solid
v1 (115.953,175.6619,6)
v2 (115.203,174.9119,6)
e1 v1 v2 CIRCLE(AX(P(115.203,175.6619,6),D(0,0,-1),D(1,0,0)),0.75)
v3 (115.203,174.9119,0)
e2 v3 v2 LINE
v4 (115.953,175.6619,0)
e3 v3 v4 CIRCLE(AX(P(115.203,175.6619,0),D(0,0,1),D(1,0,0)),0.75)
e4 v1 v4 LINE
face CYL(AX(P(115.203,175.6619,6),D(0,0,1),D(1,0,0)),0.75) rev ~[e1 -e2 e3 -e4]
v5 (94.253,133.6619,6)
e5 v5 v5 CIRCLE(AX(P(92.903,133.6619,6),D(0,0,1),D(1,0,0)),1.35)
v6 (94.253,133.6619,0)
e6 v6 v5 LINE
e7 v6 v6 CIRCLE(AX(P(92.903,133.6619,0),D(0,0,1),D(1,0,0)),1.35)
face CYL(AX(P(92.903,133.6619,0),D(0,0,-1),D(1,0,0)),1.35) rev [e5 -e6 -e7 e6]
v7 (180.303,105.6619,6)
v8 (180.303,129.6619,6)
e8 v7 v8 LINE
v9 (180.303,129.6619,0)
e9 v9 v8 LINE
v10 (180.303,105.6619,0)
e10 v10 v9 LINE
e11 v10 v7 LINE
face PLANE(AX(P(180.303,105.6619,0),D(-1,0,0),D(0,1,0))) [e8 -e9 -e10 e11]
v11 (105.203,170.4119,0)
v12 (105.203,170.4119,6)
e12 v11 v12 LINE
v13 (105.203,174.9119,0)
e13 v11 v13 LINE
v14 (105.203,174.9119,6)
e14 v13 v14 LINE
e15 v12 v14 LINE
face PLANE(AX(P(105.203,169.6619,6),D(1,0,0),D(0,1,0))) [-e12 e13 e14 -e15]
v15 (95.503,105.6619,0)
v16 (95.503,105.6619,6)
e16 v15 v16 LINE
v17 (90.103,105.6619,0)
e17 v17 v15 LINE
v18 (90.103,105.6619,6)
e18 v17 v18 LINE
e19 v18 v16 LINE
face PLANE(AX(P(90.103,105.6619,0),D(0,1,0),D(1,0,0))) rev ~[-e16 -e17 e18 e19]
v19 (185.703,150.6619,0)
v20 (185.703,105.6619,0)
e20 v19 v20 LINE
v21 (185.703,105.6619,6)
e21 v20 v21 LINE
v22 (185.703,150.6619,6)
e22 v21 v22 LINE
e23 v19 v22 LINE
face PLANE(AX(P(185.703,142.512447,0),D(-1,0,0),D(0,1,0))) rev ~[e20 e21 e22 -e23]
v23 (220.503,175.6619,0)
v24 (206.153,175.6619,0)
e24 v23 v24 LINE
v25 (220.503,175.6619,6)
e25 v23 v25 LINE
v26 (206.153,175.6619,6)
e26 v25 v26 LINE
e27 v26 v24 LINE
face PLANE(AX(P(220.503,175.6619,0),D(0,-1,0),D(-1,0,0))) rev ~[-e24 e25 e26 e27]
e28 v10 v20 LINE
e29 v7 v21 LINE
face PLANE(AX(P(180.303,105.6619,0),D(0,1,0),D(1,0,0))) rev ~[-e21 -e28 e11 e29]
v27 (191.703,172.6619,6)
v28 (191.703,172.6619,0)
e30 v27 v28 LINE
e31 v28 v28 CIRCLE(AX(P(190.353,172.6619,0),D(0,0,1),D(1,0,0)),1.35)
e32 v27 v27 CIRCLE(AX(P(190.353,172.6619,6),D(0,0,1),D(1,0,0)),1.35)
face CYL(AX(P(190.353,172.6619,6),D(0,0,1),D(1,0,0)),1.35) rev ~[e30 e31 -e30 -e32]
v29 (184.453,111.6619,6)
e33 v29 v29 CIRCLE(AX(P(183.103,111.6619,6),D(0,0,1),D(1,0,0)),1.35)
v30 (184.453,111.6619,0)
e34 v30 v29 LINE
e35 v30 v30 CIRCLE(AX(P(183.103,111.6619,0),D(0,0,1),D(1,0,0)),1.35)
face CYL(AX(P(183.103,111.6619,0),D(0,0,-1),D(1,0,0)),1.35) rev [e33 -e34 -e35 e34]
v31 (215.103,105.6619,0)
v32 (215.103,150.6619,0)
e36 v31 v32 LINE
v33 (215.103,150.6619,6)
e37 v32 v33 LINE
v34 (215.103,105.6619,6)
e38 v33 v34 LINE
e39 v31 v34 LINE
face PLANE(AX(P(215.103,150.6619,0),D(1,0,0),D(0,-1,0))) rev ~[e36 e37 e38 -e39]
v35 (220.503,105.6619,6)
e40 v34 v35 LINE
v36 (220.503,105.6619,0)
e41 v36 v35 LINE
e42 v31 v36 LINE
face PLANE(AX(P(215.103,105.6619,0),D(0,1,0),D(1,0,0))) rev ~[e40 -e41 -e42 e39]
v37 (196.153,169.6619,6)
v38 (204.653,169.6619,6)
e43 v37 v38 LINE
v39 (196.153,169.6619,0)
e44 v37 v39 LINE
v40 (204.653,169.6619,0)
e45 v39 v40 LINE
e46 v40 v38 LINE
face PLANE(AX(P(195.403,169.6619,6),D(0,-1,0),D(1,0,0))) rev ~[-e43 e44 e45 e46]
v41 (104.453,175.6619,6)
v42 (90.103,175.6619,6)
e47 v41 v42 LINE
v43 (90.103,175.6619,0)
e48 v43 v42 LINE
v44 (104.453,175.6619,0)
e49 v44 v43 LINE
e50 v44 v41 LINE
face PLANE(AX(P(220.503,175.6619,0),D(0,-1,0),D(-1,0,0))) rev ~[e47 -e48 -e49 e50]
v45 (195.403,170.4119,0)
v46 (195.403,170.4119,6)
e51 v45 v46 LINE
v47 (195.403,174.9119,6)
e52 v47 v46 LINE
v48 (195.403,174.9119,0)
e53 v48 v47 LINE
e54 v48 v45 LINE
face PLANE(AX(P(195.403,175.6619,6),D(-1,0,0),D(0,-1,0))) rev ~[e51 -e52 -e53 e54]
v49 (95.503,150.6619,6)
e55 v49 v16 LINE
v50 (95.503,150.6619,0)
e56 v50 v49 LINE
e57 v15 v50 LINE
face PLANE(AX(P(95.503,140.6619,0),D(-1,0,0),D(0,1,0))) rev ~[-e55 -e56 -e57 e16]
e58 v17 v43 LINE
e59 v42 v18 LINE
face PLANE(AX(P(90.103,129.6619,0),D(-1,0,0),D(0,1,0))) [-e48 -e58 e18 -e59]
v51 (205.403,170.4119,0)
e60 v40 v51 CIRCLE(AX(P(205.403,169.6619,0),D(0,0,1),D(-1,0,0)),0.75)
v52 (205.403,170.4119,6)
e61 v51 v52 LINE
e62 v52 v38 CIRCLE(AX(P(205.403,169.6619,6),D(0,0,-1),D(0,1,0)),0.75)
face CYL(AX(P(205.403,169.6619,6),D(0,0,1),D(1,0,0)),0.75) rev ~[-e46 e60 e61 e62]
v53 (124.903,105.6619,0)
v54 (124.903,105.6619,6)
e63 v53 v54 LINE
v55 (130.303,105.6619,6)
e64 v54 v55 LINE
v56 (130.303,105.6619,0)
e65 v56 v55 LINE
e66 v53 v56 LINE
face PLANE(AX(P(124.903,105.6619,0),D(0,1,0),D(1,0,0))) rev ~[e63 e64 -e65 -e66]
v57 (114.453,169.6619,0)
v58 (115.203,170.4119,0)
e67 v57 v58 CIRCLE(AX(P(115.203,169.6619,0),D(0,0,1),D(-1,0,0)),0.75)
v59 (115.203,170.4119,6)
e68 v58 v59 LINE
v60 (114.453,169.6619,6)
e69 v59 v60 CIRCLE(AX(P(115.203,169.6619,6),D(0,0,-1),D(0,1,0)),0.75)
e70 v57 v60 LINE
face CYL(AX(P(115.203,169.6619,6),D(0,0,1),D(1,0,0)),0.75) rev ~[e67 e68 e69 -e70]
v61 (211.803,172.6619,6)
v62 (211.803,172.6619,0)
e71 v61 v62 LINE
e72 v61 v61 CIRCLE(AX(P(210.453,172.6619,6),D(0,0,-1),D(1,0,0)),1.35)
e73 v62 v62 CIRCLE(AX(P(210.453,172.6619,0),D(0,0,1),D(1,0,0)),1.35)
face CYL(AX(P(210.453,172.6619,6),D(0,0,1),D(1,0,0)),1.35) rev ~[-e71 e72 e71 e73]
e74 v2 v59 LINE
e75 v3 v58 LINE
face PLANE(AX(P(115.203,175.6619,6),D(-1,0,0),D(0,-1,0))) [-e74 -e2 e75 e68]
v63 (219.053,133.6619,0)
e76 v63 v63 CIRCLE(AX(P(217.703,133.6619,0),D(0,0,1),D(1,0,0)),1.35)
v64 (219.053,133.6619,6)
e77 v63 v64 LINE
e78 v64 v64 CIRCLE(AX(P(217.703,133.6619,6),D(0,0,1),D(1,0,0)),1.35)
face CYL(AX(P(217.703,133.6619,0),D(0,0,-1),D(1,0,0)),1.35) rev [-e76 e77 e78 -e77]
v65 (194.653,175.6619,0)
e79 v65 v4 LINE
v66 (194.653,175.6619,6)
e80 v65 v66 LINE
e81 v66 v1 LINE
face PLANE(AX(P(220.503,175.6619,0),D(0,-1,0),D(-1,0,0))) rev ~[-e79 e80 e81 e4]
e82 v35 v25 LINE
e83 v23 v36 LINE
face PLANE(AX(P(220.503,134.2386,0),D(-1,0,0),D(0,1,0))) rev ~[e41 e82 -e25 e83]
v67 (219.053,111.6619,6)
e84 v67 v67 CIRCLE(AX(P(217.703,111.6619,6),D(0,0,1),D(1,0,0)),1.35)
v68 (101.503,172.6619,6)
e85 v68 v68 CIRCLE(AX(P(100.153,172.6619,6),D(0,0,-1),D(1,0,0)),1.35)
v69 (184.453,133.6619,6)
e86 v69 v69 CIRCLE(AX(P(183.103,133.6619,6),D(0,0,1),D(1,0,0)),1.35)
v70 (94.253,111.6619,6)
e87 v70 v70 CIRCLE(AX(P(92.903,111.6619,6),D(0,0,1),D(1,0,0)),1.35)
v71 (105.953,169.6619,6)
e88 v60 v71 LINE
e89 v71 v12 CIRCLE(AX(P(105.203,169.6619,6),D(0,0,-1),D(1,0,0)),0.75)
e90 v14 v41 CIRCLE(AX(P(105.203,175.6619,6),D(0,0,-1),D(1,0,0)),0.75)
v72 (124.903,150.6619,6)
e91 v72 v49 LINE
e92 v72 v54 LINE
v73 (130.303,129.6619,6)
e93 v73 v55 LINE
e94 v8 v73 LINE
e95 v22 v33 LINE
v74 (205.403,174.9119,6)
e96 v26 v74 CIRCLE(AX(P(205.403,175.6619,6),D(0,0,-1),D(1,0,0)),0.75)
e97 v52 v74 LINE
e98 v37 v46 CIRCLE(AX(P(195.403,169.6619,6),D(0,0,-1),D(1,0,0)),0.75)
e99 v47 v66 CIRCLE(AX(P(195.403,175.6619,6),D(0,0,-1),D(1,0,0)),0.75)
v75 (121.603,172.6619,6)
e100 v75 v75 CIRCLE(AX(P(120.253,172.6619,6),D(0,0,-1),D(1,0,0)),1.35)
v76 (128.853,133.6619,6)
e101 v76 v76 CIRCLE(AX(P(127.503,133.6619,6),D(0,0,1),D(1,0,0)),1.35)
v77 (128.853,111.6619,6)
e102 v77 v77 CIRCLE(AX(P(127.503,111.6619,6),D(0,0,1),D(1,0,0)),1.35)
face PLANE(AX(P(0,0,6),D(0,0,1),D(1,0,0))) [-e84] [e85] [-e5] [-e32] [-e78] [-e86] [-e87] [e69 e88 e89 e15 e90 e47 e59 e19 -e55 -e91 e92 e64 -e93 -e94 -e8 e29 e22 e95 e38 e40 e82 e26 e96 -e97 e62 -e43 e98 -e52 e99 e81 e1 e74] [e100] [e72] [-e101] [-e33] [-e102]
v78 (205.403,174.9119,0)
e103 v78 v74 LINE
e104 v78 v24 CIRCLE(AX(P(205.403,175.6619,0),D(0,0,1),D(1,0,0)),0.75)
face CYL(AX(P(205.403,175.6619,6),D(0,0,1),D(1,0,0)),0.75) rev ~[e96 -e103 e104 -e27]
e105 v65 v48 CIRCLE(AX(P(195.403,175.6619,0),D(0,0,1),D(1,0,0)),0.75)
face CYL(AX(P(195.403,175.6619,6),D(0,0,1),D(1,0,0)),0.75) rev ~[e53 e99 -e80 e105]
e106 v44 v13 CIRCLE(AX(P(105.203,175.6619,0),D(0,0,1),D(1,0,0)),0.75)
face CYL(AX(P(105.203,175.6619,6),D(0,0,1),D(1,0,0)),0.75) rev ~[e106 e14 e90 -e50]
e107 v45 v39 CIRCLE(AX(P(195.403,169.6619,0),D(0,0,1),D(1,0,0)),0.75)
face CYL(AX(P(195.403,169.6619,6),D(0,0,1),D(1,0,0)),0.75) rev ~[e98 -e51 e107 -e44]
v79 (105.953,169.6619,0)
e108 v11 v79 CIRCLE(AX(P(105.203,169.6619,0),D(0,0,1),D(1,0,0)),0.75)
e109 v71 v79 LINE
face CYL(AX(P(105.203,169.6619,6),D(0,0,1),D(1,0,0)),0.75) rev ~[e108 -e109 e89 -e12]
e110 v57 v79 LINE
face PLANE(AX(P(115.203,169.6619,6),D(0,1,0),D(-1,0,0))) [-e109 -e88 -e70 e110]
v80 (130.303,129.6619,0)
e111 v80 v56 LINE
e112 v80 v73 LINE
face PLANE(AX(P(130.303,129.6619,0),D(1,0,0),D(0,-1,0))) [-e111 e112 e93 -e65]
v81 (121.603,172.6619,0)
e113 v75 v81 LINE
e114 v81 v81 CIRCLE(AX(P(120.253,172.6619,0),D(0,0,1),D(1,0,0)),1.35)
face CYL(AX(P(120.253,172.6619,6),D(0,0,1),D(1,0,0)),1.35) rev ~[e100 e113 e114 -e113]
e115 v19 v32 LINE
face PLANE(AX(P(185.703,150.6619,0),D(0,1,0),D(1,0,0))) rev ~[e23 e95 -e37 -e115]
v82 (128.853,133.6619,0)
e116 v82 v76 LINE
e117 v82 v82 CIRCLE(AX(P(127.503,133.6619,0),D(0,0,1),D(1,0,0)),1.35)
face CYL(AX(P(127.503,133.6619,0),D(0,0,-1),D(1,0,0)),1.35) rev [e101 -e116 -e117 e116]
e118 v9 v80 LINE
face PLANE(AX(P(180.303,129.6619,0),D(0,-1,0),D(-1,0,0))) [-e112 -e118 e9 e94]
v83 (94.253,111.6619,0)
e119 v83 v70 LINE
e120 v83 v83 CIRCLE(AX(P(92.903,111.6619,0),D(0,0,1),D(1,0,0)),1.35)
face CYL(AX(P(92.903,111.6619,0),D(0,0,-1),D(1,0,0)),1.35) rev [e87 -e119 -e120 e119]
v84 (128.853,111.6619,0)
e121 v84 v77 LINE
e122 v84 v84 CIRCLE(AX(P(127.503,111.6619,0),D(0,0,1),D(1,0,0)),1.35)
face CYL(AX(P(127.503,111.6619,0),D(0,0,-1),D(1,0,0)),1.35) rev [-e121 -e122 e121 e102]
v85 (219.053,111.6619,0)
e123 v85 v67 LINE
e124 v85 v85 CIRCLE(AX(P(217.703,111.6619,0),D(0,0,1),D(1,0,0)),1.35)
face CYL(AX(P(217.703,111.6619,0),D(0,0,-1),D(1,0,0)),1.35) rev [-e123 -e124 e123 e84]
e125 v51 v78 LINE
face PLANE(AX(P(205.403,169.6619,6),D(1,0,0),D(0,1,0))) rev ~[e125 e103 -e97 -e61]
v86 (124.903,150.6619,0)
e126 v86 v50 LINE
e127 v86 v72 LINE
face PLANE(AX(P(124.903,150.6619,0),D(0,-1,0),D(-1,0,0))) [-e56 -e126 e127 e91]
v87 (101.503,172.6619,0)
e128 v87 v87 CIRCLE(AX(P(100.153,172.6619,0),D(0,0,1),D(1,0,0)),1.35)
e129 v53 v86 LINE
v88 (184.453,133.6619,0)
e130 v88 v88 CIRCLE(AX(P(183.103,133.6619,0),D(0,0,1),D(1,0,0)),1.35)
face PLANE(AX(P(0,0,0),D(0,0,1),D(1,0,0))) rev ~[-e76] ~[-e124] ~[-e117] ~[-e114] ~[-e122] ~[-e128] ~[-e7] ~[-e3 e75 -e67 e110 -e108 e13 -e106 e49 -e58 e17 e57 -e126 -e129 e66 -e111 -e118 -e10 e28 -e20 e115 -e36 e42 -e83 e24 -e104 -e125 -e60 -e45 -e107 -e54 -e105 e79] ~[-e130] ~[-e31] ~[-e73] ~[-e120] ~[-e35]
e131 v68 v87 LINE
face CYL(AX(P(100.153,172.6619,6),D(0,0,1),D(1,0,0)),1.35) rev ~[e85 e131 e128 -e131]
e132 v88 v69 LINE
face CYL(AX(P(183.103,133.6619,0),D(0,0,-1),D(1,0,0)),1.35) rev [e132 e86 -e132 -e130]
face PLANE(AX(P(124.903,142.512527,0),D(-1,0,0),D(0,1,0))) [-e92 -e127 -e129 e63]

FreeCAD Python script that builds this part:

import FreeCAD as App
import Part
import Sketcher

V = App.Vector


def add_polygon(sketch, points):
    """Adds a closed chain of lines whose ends are joined by coincident constraints."""
    first, n = sketch.GeometryCount, len(points)
    for a, b in zip(points, points[1:] + points[:1]):
        sketch.addGeometry(Part.LineSegment(App.Vector(*a, 0), App.Vector(*b, 0)), False)
    for i in range(n):
        sketch.addConstraint(Sketcher.Constraint("Coincident", first + i, 2, first + (i + 1) % n, 1))

doc = App.newDocument("Part")
body = doc.addObject("PartDesign::Body", "Body")

sketch1 = doc.addObject("Sketcher::SketchObject", "Sketch")
body.addObject(sketch1)
sketch1.AttachmentSupport = (doc.XY_Plane, [""])
sketch1.MapMode = "FlatFace"
add_polygon(sketch1, [(95.503, 150.6619), (124.903, 150.6619), (124.903, 105.6619), (130.303, 105.6619), (130.303, 129.6619), (180.303, 129.6619), (180.303, 105.6619), (185.703, 105.6619), (185.703, 150.6619), (215.103, 150.6619), (215.103, 105.6619), (220.503, 105.6619), (220.503, 175.6619), (90.103, 175.6619), (90.103, 105.6619), (95.503, 105.6619)])
sketch1.addGeometry(Part.Circle(V(92.903, 133.6619, 0), V(0, 0, 1), 1.35), False)
sketch1.addGeometry(Part.Circle(V(92.903, 111.6619, 0), V(0, 0, 1), 1.35), False)
sketch1.addGeometry(Part.Circle(V(217.703, 133.6619, 0), V(0, 0, 1), 1.35), False)
sketch1.addGeometry(Part.Circle(V(217.703, 111.6619, 0), V(0, 0, 1), 1.35), False)
sketch1.addGeometry(Part.Circle(V(183.103, 133.6619, 0), V(0, 0, 1), 1.35), False)
sketch1.addGeometry(Part.Circle(V(127.503, 133.6619, 0), V(0, 0, 1), 1.35), False)
sketch1.addGeometry(Part.Circle(V(183.103, 111.6619, 0), V(0, 0, 1), 1.35), False)
sketch1.addGeometry(Part.Circle(V(127.503, 111.6619, 0), V(0, 0, 1), 1.35), False)
sketch1.addConstraint([
    Sketcher.Constraint("Horizontal", 0),
    Sketcher.Constraint("Vertical", 1),
    Sketcher.Constraint("Horizontal", 2),
    Sketcher.Constraint("Vertical", 3),
    Sketcher.Constraint("Horizontal", 4),
    Sketcher.Constraint("Vertical", 5),
    Sketcher.Constraint("Horizontal", 6),
    Sketcher.Constraint("Vertical", 7),
    Sketcher.Constraint("Horizontal", 8),
    Sketcher.Constraint("Vertical", 9),
    Sketcher.Constraint("Horizontal", 10),
    Sketcher.Constraint("Vertical", 11),
    Sketcher.Constraint("Horizontal", 12),
    Sketcher.Constraint("Vertical", 13),
    Sketcher.Constraint("Horizontal", 14),
    Sketcher.Constraint("Vertical", 15),
    Sketcher.Constraint("Equal", 16, 17),
    Sketcher.Constraint("Equal", 17, 18),
    Sketcher.Constraint("Equal", 18, 19),
    Sketcher.Constraint("Equal", 19, 20),
    Sketcher.Constraint("Equal", 20, 21),
    Sketcher.Constraint("Equal", 21, 22),
    Sketcher.Constraint("Equal", 22, 23),
    Sketcher.Constraint("Horizontal", 16, 3, 18, 3),
    Sketcher.Constraint("Horizontal", 17, 3, 19, 3),
    Sketcher.Constraint("Horizontal", 18, 3, 20, 3),
    Sketcher.Constraint("Horizontal", 20, 3, 21, 3),
    Sketcher.Constraint("Horizontal", 19, 3, 22, 3),
    Sketcher.Constraint("Horizontal", 22, 3, 23, 3),
    Sketcher.Constraint("Horizontal", 2, 2, 5, 2),
    Sketcher.Constraint("Horizontal", 0, 2, 7, 2),
    Sketcher.Constraint("Horizontal", 6, 2, 9, 2),
    Sketcher.Constraint("Horizontal", 10, 2, 13, 2),
    Sketcher.Constraint("Vertical", 16, 3, 17, 3),
    Sketcher.Constraint("Vertical", 18, 3, 19, 3),
    Sketcher.Constraint("Vertical", 20, 3, 22, 3),
    Sketcher.Constraint("Vertical", 21, 3, 23, 3),
    Sketcher.Constraint("Equal", 2, 6),
    Sketcher.Constraint("Equal", 0, 8),
    Sketcher.Constraint("Equal", 6, 10),
    Sketcher.Constraint("Equal", 10, 14),
    Sketcher.Constraint("DistanceY", 3, 1, 3, 2, 24.0),
    Sketcher.Constraint("DistanceY", 4, 2, 11, 2, 46.0),
    Sketcher.Constraint("Diameter", 16, 2.7),
    Sketcher.Constraint("DistanceX", 4, 1, 4, 2, 50.0),
    Sketcher.Constraint("DistanceY", 1, 2, 1, 1, 45.0),
    Sketcher.Constraint("DistanceX", 0, 1, 0, 2, 29.4),
    Sketcher.Constraint("DistanceX", 2, 1, 2, 2, 5.4),
    Sketcher.Constraint("DistanceY", 17, 3, 16, 3, 22.0),
    Sketcher.Constraint("DistanceY", 21, 3, 0, 2, 17.0),
    Sketcher.Constraint("DistanceX", 16, 3, 0, 2, 32.0),
    Sketcher.Constraint("DistanceX", 6, 2, 19, 3, 32.0),
    Sketcher.Constraint("DistanceX", 20, 3, 8, 2, 32.0),
    Sketcher.Constraint("DistanceX", 14, 2, 23, 3, 32.0),
    Sketcher.Constraint("DistanceX", -1, 1, 16, 3, 92.903),
    Sketcher.Constraint("DistanceY", -1, 1, 16, 3, 133.662),
])
pad1 = doc.addObject("PartDesign::Pad", "Pad")
body.addObject(pad1)
pad1.Profile = sketch1
pad1.Length = 6

sketch2 = doc.addObject("Sketcher::SketchObject", "Sketch001")
body.addObject(sketch2)
sketch2.AttachmentSupport = (doc.XY_Plane, [""])
sketch2.MapMode = "FlatFace"
sketch2.AttachmentOffset = App.Placement(V(0, 0, 6), App.Rotation())
sketch2.addGeometry([
    Part.Circle(V(120.253, 172.6619, 0), V(0, 0, 1), 1.35),
    Part.Circle(V(100.153, 172.6619, 0), V(0, 0, 1), 1.35),
    Part.Circle(V(190.353, 172.6619, 0), V(0, 0, 1), 1.35),
    Part.Circle(V(210.453, 172.6619, 0), V(0, 0, 1), 1.35),
], False)
sketch2.addConstraint([
    Sketcher.Constraint("Equal", 0, 1),
    Sketcher.Constraint("Equal", 1, 2),
    Sketcher.Constraint("Equal", 2, 3),
    Sketcher.Constraint("Horizontal", 0, 3, 1, 3),
    Sketcher.Constraint("Horizontal", 1, 3, 2, 3),
    Sketcher.Constraint("Horizontal", 2, 3, 3, 3),
    Sketcher.Constraint("Diameter", 0, 2.7),
    Sketcher.Constraint("DistanceX", 1, 3, 0, 3, 20.1),
    Sketcher.Constraint("DistanceX", 2, 3, 3, 3, 20.1),
    Sketcher.Constraint("DistanceX", 0, 3, 2, 3, 70.1),
    Sketcher.Constraint("DistanceX", -1, 1, 0, 3, 120.253),
    Sketcher.Constraint("DistanceY", -1, 1, 0, 3, 172.662),
])
pocket1 = doc.addObject("PartDesign::Pocket", "Pocket")
body.addObject(pocket1)
pocket1.Profile = sketch2
pocket1.Length = 6

sketch3 = doc.addObject("Sketcher::SketchObject", "Sketch002")
body.addObject(sketch3)
sketch3.AttachmentSupport = (doc.XY_Plane, [""])
sketch3.MapMode = "FlatFace"
sketch3.AttachmentOffset = App.Placement(V(0, 0, 6), App.Rotation())
add_polygon(sketch3, [(115.203, 175.6619), (105.203, 175.6619), (105.203, 169.6619), (115.203, 169.6619)])
add_polygon(sketch3, [(205.403, 175.6619), (195.403, 175.6619), (195.403, 169.6619), (205.403, 169.6619)])
sketch3.addConstraint([
    Sketcher.Constraint("Horizontal", 0),
    Sketcher.Constraint("Vertical", 1),
    Sketcher.Constraint("Horizontal", 2),
    Sketcher.Constraint("Vertical", 3),
    Sketcher.Constraint("Horizontal", 4),
    Sketcher.Constraint("Vertical", 5),
    Sketcher.Constraint("Horizontal", 6),
    Sketcher.Constraint("Vertical", 7),
    Sketcher.Constraint("Horizontal", 3, 2, 4, 2),
    Sketcher.Constraint("Horizontal", 2, 2, 5, 2),
    Sketcher.Constraint("Equal", 2, 4),
    Sketcher.Constraint("DistanceX", 0, 2, 0, 1, 10.0),
    Sketcher.Constraint("DistanceY", 1, 2, 1, 1, 6.0),
    Sketcher.Constraint("DistanceX", 3, 2, 4, 2, 80.2),
    Sketcher.Constraint("DistanceX", -1, 1, 0, 2, 105.203),
    Sketcher.Constraint("DistanceY", -1, 1, 0, 2, 175.662),
])
pocket2 = doc.addObject("PartDesign::Pocket", "Pocket001")
body.addObject(pocket2)
pocket2.Profile = sketch3
pocket2.Length = 6

sketch4 = doc.addObject("Sketcher::SketchObject", "Sketch003")
body.addObject(sketch4)
sketch4.AttachmentSupport = (doc.XY_Plane, [""])
sketch4.MapMode = "FlatFace"
sketch4.AttachmentOffset = App.Placement(V(0, 0, 6), App.Rotation())
sketch4.addGeometry([
    Part.Circle(V(195.403, 169.6619, 0), V(0, 0, 1), 0.75),
    Part.Circle(V(195.403, 175.6619, 0), V(0, 0, 1), 0.75),
    Part.Circle(V(205.403, 169.6619, 0), V(0, 0, 1), 0.75),
    Part.Circle(V(115.203, 175.6619, 0), V(0, 0, 1), 0.75),
    Part.Circle(V(205.403, 175.6619, 0), V(0, 0, 1), 0.75),
    Part.Circle(V(115.203, 169.6619, 0), V(0, 0, 1), 0.75),
    Part.Circle(V(105.203, 169.6619, 0), V(0, 0, 1), 0.75),
    Part.Circle(V(105.203, 175.6619, 0), V(0, 0, 1), 0.75),
], False)
sketch4.addConstraint([
    Sketcher.Constraint("Equal", 0, 1),
    Sketcher.Constraint("Equal", 1, 2),
    Sketcher.Constraint("Equal", 2, 3),
    Sketcher.Constraint("Equal", 3, 4),
    Sketcher.Constraint("Equal", 4, 5),
    Sketcher.Constraint("Equal", 5, 6),
    Sketcher.Constraint("Equal", 6, 7),
    Sketcher.Constraint("Horizontal", 0, 3, 2, 3),
    Sketcher.Constraint("Horizontal", 1, 3, 3, 3),
    Sketcher.Constraint("Horizontal", 3, 3, 4, 3),
    Sketcher.Constraint("Horizontal", 2, 3, 5, 3),
    Sketcher.Constraint("Horizontal", 5, 3, 6, 3),
    Sketcher.Constraint("Horizontal", 4, 3, 7, 3),
    Sketcher.Constraint("Vertical", 0, 3, 1, 3),
    Sketcher.Constraint("Vertical", 2, 3, 4, 3),
    Sketcher.Constraint("Vertical", 3, 3, 5, 3),
    Sketcher.Constraint("Vertical", 6, 3, 7, 3),
    Sketcher.Constraint("Diameter", 0, 1.5),
    Sketcher.Constraint("DistanceY", 0, 3, 1, 3, 6.0),
    Sketcher.Constraint("DistanceX", 0, 3, 2, 3, 10.0),
    Sketcher.Constraint("DistanceX", 6, 3, 5, 3, 10.0),
    Sketcher.Constraint("DistanceX", 3, 3, 1, 3, 80.2),
    Sketcher.Constraint("DistanceX", -1, 1, 0, 3, 195.403),
    Sketcher.Constraint("DistanceY", -1, 1, 0, 3, 169.662),
])
pocket3 = doc.addObject("PartDesign::Pocket", "Pocket002")
body.addObject(pocket3)
pocket3.Profile = sketch4
pocket3.Length = 6

doc.recompute()
